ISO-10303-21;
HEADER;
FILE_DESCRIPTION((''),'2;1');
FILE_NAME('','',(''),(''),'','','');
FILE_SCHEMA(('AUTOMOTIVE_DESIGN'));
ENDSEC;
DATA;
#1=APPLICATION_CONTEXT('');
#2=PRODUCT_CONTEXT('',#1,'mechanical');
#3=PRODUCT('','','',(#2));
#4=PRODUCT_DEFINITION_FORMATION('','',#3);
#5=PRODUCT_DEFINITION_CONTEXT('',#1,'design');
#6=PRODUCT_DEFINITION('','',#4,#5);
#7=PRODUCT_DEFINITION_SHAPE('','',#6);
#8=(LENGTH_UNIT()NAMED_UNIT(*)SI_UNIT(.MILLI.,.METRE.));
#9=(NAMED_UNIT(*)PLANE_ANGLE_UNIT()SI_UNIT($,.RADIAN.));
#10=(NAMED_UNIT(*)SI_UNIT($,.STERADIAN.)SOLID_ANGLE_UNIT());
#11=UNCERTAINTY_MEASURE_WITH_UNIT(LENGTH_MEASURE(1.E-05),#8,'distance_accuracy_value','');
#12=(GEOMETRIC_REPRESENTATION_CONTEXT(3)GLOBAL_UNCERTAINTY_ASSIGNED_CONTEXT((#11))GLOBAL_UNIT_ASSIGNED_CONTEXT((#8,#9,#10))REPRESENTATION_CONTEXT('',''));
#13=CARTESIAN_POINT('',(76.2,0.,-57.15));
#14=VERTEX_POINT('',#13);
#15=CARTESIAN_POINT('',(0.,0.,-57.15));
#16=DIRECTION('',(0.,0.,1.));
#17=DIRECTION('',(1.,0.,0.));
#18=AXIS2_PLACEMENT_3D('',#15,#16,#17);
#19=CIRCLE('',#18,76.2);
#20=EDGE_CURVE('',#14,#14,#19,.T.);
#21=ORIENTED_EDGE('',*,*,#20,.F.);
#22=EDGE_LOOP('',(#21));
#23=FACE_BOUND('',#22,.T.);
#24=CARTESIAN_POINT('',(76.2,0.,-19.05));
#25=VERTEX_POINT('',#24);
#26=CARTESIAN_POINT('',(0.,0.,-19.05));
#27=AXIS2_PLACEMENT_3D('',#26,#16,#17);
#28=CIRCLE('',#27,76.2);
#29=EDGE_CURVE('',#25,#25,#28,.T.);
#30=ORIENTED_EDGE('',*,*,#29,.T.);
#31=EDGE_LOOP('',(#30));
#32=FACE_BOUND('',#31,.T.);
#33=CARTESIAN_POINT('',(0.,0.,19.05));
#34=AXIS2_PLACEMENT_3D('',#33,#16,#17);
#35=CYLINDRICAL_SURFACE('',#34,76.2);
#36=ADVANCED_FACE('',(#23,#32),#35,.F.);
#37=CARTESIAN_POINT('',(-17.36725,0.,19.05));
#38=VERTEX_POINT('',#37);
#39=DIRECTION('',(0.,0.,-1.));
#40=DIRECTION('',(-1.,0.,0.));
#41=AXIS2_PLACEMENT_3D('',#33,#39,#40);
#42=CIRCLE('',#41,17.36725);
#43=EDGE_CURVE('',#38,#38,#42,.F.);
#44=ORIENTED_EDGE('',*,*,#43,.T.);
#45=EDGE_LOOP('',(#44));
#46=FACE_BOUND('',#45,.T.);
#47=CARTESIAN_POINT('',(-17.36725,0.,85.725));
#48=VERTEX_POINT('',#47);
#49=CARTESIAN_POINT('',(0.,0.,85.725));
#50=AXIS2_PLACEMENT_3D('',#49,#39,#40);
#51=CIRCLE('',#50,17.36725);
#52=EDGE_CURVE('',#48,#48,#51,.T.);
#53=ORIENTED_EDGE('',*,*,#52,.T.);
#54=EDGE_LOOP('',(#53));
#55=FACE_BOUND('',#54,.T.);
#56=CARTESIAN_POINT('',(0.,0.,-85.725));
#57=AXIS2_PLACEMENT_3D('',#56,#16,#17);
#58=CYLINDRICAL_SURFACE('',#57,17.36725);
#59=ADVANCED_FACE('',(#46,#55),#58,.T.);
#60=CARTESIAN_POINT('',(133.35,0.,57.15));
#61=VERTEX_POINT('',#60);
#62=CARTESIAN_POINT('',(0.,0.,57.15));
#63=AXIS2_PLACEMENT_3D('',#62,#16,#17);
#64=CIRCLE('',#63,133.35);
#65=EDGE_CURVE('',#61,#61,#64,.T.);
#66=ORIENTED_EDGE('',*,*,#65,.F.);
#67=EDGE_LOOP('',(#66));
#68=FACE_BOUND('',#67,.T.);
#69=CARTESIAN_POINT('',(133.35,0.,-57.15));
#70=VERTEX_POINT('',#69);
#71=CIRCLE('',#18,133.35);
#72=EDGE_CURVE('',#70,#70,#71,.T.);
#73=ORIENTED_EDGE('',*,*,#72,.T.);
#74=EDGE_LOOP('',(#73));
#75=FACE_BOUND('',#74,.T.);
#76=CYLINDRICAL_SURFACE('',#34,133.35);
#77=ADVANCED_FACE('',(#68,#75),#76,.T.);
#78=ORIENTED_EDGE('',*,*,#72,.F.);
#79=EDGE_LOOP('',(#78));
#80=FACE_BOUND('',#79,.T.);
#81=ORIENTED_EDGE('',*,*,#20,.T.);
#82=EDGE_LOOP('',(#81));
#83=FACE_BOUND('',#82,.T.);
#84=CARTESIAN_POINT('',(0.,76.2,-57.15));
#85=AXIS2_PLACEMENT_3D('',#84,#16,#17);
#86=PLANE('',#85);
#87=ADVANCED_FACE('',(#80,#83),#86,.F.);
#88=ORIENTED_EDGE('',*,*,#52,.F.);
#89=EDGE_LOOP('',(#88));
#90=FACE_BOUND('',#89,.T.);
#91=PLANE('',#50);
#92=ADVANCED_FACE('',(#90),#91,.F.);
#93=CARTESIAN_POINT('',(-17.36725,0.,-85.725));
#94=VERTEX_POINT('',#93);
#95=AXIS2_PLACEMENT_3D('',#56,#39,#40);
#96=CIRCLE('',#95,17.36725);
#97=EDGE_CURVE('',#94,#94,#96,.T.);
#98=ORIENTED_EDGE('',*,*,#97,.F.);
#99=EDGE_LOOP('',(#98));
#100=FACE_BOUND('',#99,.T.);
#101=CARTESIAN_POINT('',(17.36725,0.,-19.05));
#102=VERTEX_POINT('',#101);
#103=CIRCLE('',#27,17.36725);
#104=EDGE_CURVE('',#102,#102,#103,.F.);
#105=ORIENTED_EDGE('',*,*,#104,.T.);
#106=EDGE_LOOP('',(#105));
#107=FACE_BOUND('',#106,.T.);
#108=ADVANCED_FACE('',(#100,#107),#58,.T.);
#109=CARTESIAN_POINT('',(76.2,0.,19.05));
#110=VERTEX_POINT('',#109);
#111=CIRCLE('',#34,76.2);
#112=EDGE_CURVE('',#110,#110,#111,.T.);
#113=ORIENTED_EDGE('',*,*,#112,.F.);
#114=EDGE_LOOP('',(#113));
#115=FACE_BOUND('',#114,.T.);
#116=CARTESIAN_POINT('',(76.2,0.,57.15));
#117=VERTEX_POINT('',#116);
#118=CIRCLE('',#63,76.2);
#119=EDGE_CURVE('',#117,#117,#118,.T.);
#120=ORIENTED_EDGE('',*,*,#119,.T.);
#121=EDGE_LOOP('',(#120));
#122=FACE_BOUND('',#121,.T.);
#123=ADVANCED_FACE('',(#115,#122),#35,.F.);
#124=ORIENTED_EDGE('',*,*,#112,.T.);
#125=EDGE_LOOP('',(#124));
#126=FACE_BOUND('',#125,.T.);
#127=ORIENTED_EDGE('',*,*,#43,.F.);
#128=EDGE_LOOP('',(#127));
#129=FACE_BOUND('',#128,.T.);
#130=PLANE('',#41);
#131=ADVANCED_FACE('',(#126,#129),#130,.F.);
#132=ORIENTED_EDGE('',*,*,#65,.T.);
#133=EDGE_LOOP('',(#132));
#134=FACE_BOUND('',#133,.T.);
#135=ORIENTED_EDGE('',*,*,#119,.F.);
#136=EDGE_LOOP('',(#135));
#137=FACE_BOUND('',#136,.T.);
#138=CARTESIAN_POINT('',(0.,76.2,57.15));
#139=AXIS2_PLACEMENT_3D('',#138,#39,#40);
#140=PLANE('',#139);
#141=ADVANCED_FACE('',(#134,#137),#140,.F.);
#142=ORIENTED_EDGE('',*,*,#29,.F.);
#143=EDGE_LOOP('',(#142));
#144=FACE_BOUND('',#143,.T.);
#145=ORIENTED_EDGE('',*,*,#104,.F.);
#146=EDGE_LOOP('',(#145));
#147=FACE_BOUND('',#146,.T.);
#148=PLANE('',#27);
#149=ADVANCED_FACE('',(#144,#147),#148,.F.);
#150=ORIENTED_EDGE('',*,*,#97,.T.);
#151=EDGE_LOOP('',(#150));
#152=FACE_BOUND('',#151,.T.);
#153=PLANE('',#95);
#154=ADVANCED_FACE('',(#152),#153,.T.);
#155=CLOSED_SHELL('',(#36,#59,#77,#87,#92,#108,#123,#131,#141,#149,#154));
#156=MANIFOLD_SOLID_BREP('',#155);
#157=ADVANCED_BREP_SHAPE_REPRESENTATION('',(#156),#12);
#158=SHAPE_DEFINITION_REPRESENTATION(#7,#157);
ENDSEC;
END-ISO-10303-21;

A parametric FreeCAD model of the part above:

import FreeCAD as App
import Part
import Sketcher
from FreeCAD import Vector
Q = App.Units.Quantity

doc = App.newDocument("Part")
params = doc.addObject("Spreadsheet::Sheet", "Params")
for row, (alias, value) in enumerate([
    ("sketch1_width", "3 in"),
    ("sketch1_height", "1.5 in"),
    ("sketch1_width2", "2.25 in"),
    ("revolution_angle", "360 deg"),
    ("pad1_length", "6.75 in"),
], start=1):
    params.set(f"A{row}", alias)
    params.set(f"B{row}", "=" + value)
    params.setAlias(f"B{row}", alias)

body = doc.addObject("PartDesign::Body", "Body")

sketch1 = doc.addObject("Sketcher::SketchObject", "Sketch")
body.addObject(sketch1)
sketch1.AttachmentSupport = (doc.YZ_Plane, [""])
sketch1.MapMode = "FlatFace"
sketch1.addGeometry(Part.LineSegment(Vector(133.35, 57.15, 0), Vector(76.2, 57.15, 0)), False)
sketch1.addGeometry(Part.LineSegment(Vector(76.2, 57.15, 0), Vector(76.2, 19.05, 0)), False)
sketch1.addGeometry(Part.LineSegment(Vector(76.2, 19.05, 0), Vector(0, 19.05, 0)), False)
sketch1.addGeometry(Part.LineSegment(Vector(0, 19.05, 0), Vector(0, -19.05, 0)), False)
sketch1.addGeometry(Part.LineSegment(Vector(0, -19.05, 0), Vector(76.2, -19.05, 0)), False)
sketch1.addGeometry(Part.LineSegment(Vector(76.2, -19.05, 0), Vector(76.2, -57.15, 0)), False)
sketch1.addGeometry(Part.LineSegment(Vector(76.2, -57.15, 0), Vector(133.35, -57.15, 0)), False)
sketch1.addGeometry(Part.LineSegment(Vector(133.35, -57.15, 0), Vector(133.35, 57.15, 0)), False)
sketch1.addConstraint(Sketcher.Constraint("Coincident", 0, 2, 1, 1))
sketch1.addConstraint(Sketcher.Constraint("Coincident", 1, 2, 2, 1))
sketch1.addConstraint(Sketcher.Constraint("Coincident", 2, 2, 3, 1))
sketch1.addConstraint(Sketcher.Constraint("Coincident", 3, 2, 4, 1))
sketch1.addConstraint(Sketcher.Constraint("Coincident", 4, 2, 5, 1))
sketch1.addConstraint(Sketcher.Constraint("Coincident", 5, 2, 6, 1))
sketch1.addConstraint(Sketcher.Constraint("Coincident", 6, 2, 7, 1))
sketch1.addConstraint(Sketcher.Constraint("Coincident", 7, 2, 0, 1))
sketch1.addConstraint(Sketcher.Constraint("Horizontal", 0))
sketch1.addConstraint(Sketcher.Constraint("Vertical", 1))
sketch1.addConstraint(Sketcher.Constraint("Horizontal", 2))
sketch1.addConstraint(Sketcher.Constraint("Vertical", 3))
sketch1.addConstraint(Sketcher.Constraint("Horizontal", 4))
sketch1.addConstraint(Sketcher.Constraint("Vertical", 5))
sketch1.addConstraint(Sketcher.Constraint("Horizontal", 6))
sketch1.addConstraint(Sketcher.Constraint("Vertical", 7))
sketch1.addConstraint(Sketcher.Constraint("Symmetric", 2, 2, 3, 2, -1, 1))
sketch1.addConstraint(Sketcher.Constraint("Symmetric", 0, 2, 5, 2, -1))
sketch1.addConstraint(Sketcher.Constraint("Equal", 1, 3))
sketch1.addConstraint(Sketcher.Constraint("DistanceX", 2, 2, 2, 1, Q("3 in")))
sketch1.addConstraint(Sketcher.Constraint("DistanceY", 1, 2, 1, 1, Q("1.5 in")))
sketch1.addConstraint(Sketcher.Constraint("DistanceX", 0, 2, 0, 1, Q("2.25 in")))
sketch1.setExpression("Constraints[19]", "Params.sketch1_width")
sketch1.setExpression("Constraints[20]", "Params.sketch1_height")
sketch1.setExpression("Constraints[21]", "Params.sketch1_width2")
revolution = doc.addObject("PartDesign::Revolution", "Revolution")
body.addObject(revolution)
revolution.Profile = sketch1
revolution.ReferenceAxis = (sketch1, ["V_Axis"])
revolution.setExpression("Angle", "Params.revolution_angle")

sketch2 = doc.addObject("Sketcher::SketchObject", "Sketch001")
body.addObject(sketch2)
sketch2.AttachmentSupport = (doc.XY_Plane, [""])
sketch2.MapMode = "FlatFace"
sketch2.addGeometry(Part.Circle(Vector(0, 0, 0), Vector(0, 0, 1), 17.36725), False)
sketch2.addConstraint(Sketcher.Constraint("Coincident", 0, 3, -1, 1))
sketch2.addConstraint(Sketcher.Constraint("Diameter", 0, Q("1.3675 in")))
pad1 = doc.addObject("PartDesign::Pad", "Pad")
body.addObject(pad1)
pad1.Profile = sketch2
pad1.setExpression("Length", "Params.pad1_length")
pad1.Midplane = True

doc.recompute()
